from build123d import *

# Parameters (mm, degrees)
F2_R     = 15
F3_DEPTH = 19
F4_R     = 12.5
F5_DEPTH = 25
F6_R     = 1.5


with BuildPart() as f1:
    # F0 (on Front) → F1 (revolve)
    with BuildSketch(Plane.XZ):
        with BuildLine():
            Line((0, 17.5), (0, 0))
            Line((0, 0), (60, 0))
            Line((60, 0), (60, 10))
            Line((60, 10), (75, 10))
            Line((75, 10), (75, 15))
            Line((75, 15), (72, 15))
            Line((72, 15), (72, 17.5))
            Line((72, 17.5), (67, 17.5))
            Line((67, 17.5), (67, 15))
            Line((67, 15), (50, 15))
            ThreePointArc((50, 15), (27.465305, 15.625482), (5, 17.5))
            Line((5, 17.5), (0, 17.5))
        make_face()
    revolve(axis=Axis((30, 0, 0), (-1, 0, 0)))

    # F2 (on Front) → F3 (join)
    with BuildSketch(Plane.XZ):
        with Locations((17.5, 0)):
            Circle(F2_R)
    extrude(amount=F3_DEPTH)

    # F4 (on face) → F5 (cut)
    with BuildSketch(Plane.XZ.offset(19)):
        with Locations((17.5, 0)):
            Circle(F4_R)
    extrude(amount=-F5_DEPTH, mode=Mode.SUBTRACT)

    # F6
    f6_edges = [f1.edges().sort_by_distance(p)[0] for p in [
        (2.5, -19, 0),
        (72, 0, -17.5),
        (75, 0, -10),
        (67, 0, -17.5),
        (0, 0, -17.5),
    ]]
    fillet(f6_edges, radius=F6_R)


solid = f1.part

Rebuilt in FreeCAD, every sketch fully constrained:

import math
import FreeCAD as App
import Part
import Sketcher
from FreeCAD import Vector
Q = App.Units.Quantity


def edges_at(feature, points):
    """Names of the edges that pass closest to the given points."""
    edges = feature.Shape.Edges
    near = lambda p: min(range(len(edges)), key=lambda i: edges[i].distToShape(Part.Vertex(*p))[0])
    return sorted({f"Edge{near(p) + 1}" for p in points})

doc = App.newDocument("Part")
body = doc.addObject("PartDesign::Body", "Body")

# Sketch on XZ plane
sketch1 = body.newObject("Sketcher::SketchObject", "Sketch")
sketch1.AttachmentSupport = (doc.getObject("XZ_Plane"), [""])
sketch1.MapMode = "FlatFace"
sketch1.addGeometry(Part.LineSegment(Vector(0, 17.5, 0), Vector(0, 0, 0)), False)
sketch1.addGeometry(Part.LineSegment(Vector(0, 0, 0), Vector(60, 0, 0)), False)
sketch1.addGeometry(Part.LineSegment(Vector(60, 0, 0), Vector(60, 10, 0)), False)
sketch1.addGeometry(Part.LineSegment(Vector(60, 10, 0), Vector(75, 10, 0)), False)
sketch1.addGeometry(Part.LineSegment(Vector(75, 10, 0), Vector(75, 15, 0)), False)
sketch1.addGeometry(Part.LineSegment(Vector(75, 15, 0), Vector(72, 15, 0)), False)
sketch1.addGeometry(Part.LineSegment(Vector(72, 15, 0), Vector(72, 17.5, 0)), False)
sketch1.addGeometry(Part.LineSegment(Vector(72, 17.5, 0), Vector(67, 17.5, 0)), False)
sketch1.addGeometry(Part.LineSegment(Vector(67, 17.5, 0), Vector(67, 15, 0)), False)
sketch1.addGeometry(Part.LineSegment(Vector(67, 15, 0), Vector(50, 15, 0)), False)
sketch1.addGeometry(Part.ArcOfCircle(Part.Circle(Vector(50.000019, 421.250334, 0), Vector(0, 0, 1), 406.250334), math.radians(-96.359658), math.radians(-90.000003)), False)
sketch1.addGeometry(Part.LineSegment(Vector(5, 17.5, 0), Vector(0, 17.5, 0)), False)
sketch1.addConstraint(Sketcher.Constraint("Coincident", 0, 2, 1, 1))
sketch1.addConstraint(Sketcher.Constraint("Coincident", 1, 2, 2, 1))
sketch1.addConstraint(Sketcher.Constraint("Coincident", 2, 2, 3, 1))
sketch1.addConstraint(Sketcher.Constraint("Coincident", 3, 2, 4, 1))
sketch1.addConstraint(Sketcher.Constraint("Coincident", 4, 2, 5, 1))
sketch1.addConstraint(Sketcher.Constraint("Coincident", 5, 2, 6, 1))
sketch1.addConstraint(Sketcher.Constraint("Coincident", 6, 2, 7, 1))
sketch1.addConstraint(Sketcher.Constraint("Coincident", 7, 2, 8, 1))
sketch1.addConstraint(Sketcher.Constraint("Coincident", 8, 2, 9, 1))
sketch1.addConstraint(Sketcher.Constraint("Coincident", 9, 2, 10, 2))
sketch1.addConstraint(Sketcher.Constraint("Coincident", 10, 1, 11, 1))
sketch1.addConstraint(Sketcher.Constraint("Coincident", 11, 2, 0, 1))
sketch1.addConstraint(Sketcher.Constraint("Vertical", 0))
sketch1.addConstraint(Sketcher.Constraint("Horizontal", 1))
sketch1.addConstraint(Sketcher.Constraint("Vertical", 2))
sketch1.addConstraint(Sketcher.Constraint("Horizontal", 3))
sketch1.addConstraint(Sketcher.Constraint("Vertical", 4))
sketch1.addConstraint(Sketcher.Constraint("Horizontal", 5))
sketch1.addConstraint(Sketcher.Constraint("Vertical", 6))
sketch1.addConstraint(Sketcher.Constraint("Horizontal", 7))
sketch1.addConstraint(Sketcher.Constraint("Vertical", 8))
sketch1.addConstraint(Sketcher.Constraint("Horizontal", 9))
sketch1.addConstraint(Sketcher.Constraint("Horizontal", 11))
sketch1.addConstraint(Sketcher.Constraint("Coincident", 0, 2, -1, 1))
sketch1.addConstraint(Sketcher.Constraint("DistanceX", 1, 1, 1, 2, Q("60 mm")))
sketch1.addConstraint(Sketcher.Constraint("DistanceX", 3, 1, 3, 2, Q("15 mm")))
sketch1.addConstraint(Sketcher.Constraint("DistanceX", 5, 2, 5, 1, Q("3 mm")))
sketch1.addConstraint(Sketcher.Constraint("DistanceX", 7, 2, 7, 1, Q("5 mm")))
sketch1.addConstraint(Sketcher.Constraint("DistanceX", 9, 2, 9, 1, Q("17 mm")))
sketch1.addConstraint(Sketcher.Constraint("DistanceX", 11, 2, 11, 1, Q("5 mm")))
sketch1.addConstraint(Sketcher.Constraint("DistanceY", 2, 1, 2, 2, Q("10 mm")))
sketch1.addConstraint(Sketcher.Constraint("DistanceY", 4, 1, 4, 2, Q("5 mm")))
sketch1.addConstraint(Sketcher.Constraint("DistanceY", 0, 2, 0, 1, Q("17.5 mm")))
sketch1.addConstraint(Sketcher.Constraint("DistanceY", 6, 1, 6, 2, Q("2.5 mm")))
sketch1.addConstraint(Sketcher.Constraint("DistanceY", 8, 2, 8, 1, Q("2.5 mm")))
sketch1.addConstraint(Sketcher.Constraint("Radius", 10, Q("406.250334 mm")))
revolution = body.newObject("PartDesign::Revolution", "Revolution")
revolution.Profile = sketch1
revolution.ReferenceAxis = (sketch1, ["H_Axis"])
revolution.Angle = 360

# Sketch on XZ plane
sketch2 = body.newObject("Sketcher::SketchObject", "Sketch001")
sketch2.AttachmentSupport = (doc.getObject("XZ_Plane"), [""])
sketch2.MapMode = "FlatFace"
sketch2.addGeometry(Part.Circle(Vector(18, 0, 0), Vector(0, 0, 1), 15), False)
sketch2.addConstraint(Sketcher.Constraint("PointOnObject", 0, 3, -1))
sketch2.addConstraint(Sketcher.Constraint("Diameter", 0, Q("30 mm")))
sketch2.addConstraint(Sketcher.Constraint("DistanceX", -1, 1, 0, 3, Q("17.5 mm")))
pad1 = body.newObject("PartDesign::Pad", "Pad")
pad1.Profile = sketch2
pad1.Length = 19

# Sketch on XZ plane
sketch3 = body.newObject("Sketcher::SketchObject", "Sketch002")
sketch3.AttachmentSupport = (doc.getObject("XZ_Plane"), [""])
sketch3.MapMode = "FlatFace"
sketch3.AttachmentOffset = App.Placement(Vector(0, 0, 19), App.Rotation())
sketch3.addGeometry(Part.Circle(Vector(18, 0, 0), Vector(0, 0, 1), 12), False)
sketch3.addConstraint(Sketcher.Constraint("PointOnObject", 0, 3, -1))
sketch3.addConstraint(Sketcher.Constraint("Diameter", 0, Q("25 mm")))
sketch3.addConstraint(Sketcher.Constraint("DistanceX", -1, 1, 0, 3, Q("17.5 mm")))
pocket1 = body.newObject("PartDesign::Pocket", "Pocket")
pocket1.Profile = sketch3
pocket1.Length = 25
doc.recompute()

fillet = body.newObject("PartDesign::Fillet", "Fillet")
fillet.Base = (pocket1, edges_at(pocket1, [
    (2.5, -19, 0),
    (72, 0, -17.5),
    (75, 0, -10),
    (67, 0, -17.5),
    (0, 0, -17.5),
]))
fillet.Radius = 1.5

doc.recompute()
